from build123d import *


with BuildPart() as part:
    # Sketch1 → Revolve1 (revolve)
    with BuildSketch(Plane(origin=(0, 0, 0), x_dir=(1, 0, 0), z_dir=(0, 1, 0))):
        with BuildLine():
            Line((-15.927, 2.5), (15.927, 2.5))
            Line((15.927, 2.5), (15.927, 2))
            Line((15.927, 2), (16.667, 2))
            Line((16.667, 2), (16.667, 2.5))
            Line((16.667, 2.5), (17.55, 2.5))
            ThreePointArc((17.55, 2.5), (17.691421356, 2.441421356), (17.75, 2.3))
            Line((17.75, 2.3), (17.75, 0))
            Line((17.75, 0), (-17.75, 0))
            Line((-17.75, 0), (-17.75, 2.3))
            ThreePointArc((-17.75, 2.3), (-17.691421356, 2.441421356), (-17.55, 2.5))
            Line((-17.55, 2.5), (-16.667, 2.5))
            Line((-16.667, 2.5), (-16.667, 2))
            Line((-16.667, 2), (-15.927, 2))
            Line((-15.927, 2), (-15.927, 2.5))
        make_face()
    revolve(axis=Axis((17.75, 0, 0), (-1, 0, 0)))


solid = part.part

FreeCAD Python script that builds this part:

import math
import FreeCAD as App
import Part
import Sketcher

doc = App.newDocument("Part")
params = doc.addObject("Spreadsheet::Sheet", "Params")
for row, (alias, value) in enumerate([
    ("sketch1_radius", "0.2 mm"),
    ("sketch1_width", "35.5 mm"),
    ("sketch1_height", "0.5 mm"),
    ("sketch1_height2", "2.3 mm"),
    ("sketch1_width2", "0.74 mm"),
    ("revolution_angle", "360 deg"),
], start=1):
    params.set(f"A{row}", alias)
    params.set(f"B{row}", "=" + value)
    params.setAlias(f"B{row}", alias)

body = doc.addObject("PartDesign::Body", "Body")

# Sketch on XZ plane
sketch1 = doc.addObject("Sketcher::SketchObject", "Sketch")
body.addObject(sketch1)
sketch1.AttachmentSupport = (doc.XZ_Plane, [""])
sketch1.MapMode = "FlatFace"
sketch1.addGeometry(Part.LineSegment(App.Vector(15.93, -2.5, 0), App.Vector(-15.93, -2.5, 0)), False)
sketch1.addGeometry(Part.LineSegment(App.Vector(-15.93, -2.5, 0), App.Vector(-15.93, -2, 0)), False)
sketch1.addGeometry(Part.LineSegment(App.Vector(-15.93, -2, 0), App.Vector(-16.67, -2, 0)), False)
sketch1.addGeometry(Part.LineSegment(App.Vector(-16.67, -2, 0), App.Vector(-16.67, -2.5, 0)), False)
sketch1.addGeometry(Part.LineSegment(App.Vector(-16.67, -2.5, 0), App.Vector(-17.55, -2.5, 0)), False)
sketch1.addGeometry(Part.ArcOfCircle(Part.Circle(App.Vector(-17.55, -2.3, 0), App.Vector(0, 0, 1), 0.2), math.radians(-180), math.radians(-90)), False)
sketch1.addGeometry(Part.LineSegment(App.Vector(-17.75, -2.3, 0), App.Vector(-17.75, 0, 0)), False)
sketch1.addGeometry(Part.LineSegment(App.Vector(-17.75, 0, 0), App.Vector(17.75, 0, 0)), False)
sketch1.addGeometry(Part.LineSegment(App.Vector(17.75, 0, 0), App.Vector(17.75, -2.3, 0)), False)
sketch1.addGeometry(Part.ArcOfCircle(Part.Circle(App.Vector(17.55, -2.3, 0), App.Vector(0, 0, 1), 0.2), math.radians(-90), math.radians(0)), False)
sketch1.addGeometry(Part.LineSegment(App.Vector(17.55, -2.5, 0), App.Vector(16.67, -2.5, 0)), False)
sketch1.addGeometry(Part.LineSegment(App.Vector(16.67, -2.5, 0), App.Vector(16.67, -2, 0)), False)
sketch1.addGeometry(Part.LineSegment(App.Vector(16.67, -2, 0), App.Vector(15.93, -2, 0)), False)
sketch1.addGeometry(Part.LineSegment(App.Vector(15.93, -2, 0), App.Vector(15.93, -2.5, 0)), False)
sketch1.addConstraint(Sketcher.Constraint("Coincident", 0, 2, 1, 1))
sketch1.addConstraint(Sketcher.Constraint("Coincident", 1, 2, 2, 1))
sketch1.addConstraint(Sketcher.Constraint("Coincident", 2, 2, 3, 1))
sketch1.addConstraint(Sketcher.Constraint("Coincident", 3, 2, 4, 1))
sketch1.addConstraint(Sketcher.Constraint("Tangent", 4, 2, 5, 2))
sketch1.addConstraint(Sketcher.Constraint("Tangent", 5, 1, 6, 1))
sketch1.addConstraint(Sketcher.Constraint("Coincident", 6, 2, 7, 1))
sketch1.addConstraint(Sketcher.Constraint("Coincident", 7, 2, 8, 1))
sketch1.addConstraint(Sketcher.Constraint("Tangent", 8, 2, 9, 2))
sketch1.addConstraint(Sketcher.Constraint("Tangent", 9, 1, 10, 1))
sketch1.addConstraint(Sketcher.Constraint("Coincident", 10, 2, 11, 1))
sketch1.addConstraint(Sketcher.Constraint("Coincident", 11, 2, 12, 1))
sketch1.addConstraint(Sketcher.Constraint("Coincident", 12, 2, 13, 1))
sketch1.addConstraint(Sketcher.Constraint("Coincident", 13, 2, 0, 1))
sketch1.addConstraint(Sketcher.Constraint("Horizontal", 0))
sketch1.addConstraint(Sketcher.Constraint("Vertical", 1))
sketch1.addConstraint(Sketcher.Constraint("Horizontal", 2))
sketch1.addConstraint(Sketcher.Constraint("Vertical", 3))
sketch1.addConstraint(Sketcher.Constraint("Horizontal", 4))
sketch1.addConstraint(Sketcher.Constraint("Vertical", 6))
sketch1.addConstraint(Sketcher.Constraint("Horizontal", 7))
sketch1.addConstraint(Sketcher.Constraint("Vertical", 8))
sketch1.addConstraint(Sketcher.Constraint("Horizontal", 10))
sketch1.addConstraint(Sketcher.Constraint("Vertical", 11))
sketch1.addConstraint(Sketcher.Constraint("Horizontal", 12))
sketch1.addConstraint(Sketcher.Constraint("Vertical", 13))
sketch1.addConstraint(Sketcher.Constraint("Equal", 5, 9))
sketch1.addConstraint(Sketcher.Constraint("Symmetric", 6, 2, 7, 2, -1, 1))
sketch1.addConstraint(Sketcher.Constraint("Symmetric", 3, 2, 10, 2, -2))
sketch1.addConstraint(Sketcher.Constraint("Symmetric", 1, 2, 12, 2, -2))
sketch1.addConstraint(Sketcher.Constraint("Horizontal", 0, 2, 3, 2))
sketch1.addConstraint(Sketcher.Constraint("Radius", 5, 0.2))
sketch1.addConstraint(Sketcher.Constraint("DistanceX", 7, 1, 7, 2, 35.5))
sketch1.addConstraint(Sketcher.Constraint("DistanceY", 1, 1, 1, 2, 0.5))
sketch1.addConstraint(Sketcher.Constraint("DistanceY", 6, 1, 6, 2, 2.3))
sketch1.addConstraint(Sketcher.Constraint("DistanceX", 2, 2, 2, 1, 0.74))
sketch1.addConstraint(Sketcher.Constraint("DistanceX", 0, 2, 0, 1, 31.854))
sketch1.setExpression("Constraints[31]", "Params.sketch1_radius")
sketch1.setExpression("Constraints[32]", "Params.sketch1_width")
sketch1.setExpression("Constraints[33]", "Params.sketch1_height")
sketch1.setExpression("Constraints[34]", "Params.sketch1_height2")
sketch1.setExpression("Constraints[35]", "Params.sketch1_width2")
revolution = doc.addObject("PartDesign::Revolution", "Revolution")
body.addObject(revolution)
revolution.Profile = sketch1
revolution.ReferenceAxis = (sketch1, ["H_Axis"])
revolution.setExpression("Angle", "Params.revolution_angle")

doc.recompute()
